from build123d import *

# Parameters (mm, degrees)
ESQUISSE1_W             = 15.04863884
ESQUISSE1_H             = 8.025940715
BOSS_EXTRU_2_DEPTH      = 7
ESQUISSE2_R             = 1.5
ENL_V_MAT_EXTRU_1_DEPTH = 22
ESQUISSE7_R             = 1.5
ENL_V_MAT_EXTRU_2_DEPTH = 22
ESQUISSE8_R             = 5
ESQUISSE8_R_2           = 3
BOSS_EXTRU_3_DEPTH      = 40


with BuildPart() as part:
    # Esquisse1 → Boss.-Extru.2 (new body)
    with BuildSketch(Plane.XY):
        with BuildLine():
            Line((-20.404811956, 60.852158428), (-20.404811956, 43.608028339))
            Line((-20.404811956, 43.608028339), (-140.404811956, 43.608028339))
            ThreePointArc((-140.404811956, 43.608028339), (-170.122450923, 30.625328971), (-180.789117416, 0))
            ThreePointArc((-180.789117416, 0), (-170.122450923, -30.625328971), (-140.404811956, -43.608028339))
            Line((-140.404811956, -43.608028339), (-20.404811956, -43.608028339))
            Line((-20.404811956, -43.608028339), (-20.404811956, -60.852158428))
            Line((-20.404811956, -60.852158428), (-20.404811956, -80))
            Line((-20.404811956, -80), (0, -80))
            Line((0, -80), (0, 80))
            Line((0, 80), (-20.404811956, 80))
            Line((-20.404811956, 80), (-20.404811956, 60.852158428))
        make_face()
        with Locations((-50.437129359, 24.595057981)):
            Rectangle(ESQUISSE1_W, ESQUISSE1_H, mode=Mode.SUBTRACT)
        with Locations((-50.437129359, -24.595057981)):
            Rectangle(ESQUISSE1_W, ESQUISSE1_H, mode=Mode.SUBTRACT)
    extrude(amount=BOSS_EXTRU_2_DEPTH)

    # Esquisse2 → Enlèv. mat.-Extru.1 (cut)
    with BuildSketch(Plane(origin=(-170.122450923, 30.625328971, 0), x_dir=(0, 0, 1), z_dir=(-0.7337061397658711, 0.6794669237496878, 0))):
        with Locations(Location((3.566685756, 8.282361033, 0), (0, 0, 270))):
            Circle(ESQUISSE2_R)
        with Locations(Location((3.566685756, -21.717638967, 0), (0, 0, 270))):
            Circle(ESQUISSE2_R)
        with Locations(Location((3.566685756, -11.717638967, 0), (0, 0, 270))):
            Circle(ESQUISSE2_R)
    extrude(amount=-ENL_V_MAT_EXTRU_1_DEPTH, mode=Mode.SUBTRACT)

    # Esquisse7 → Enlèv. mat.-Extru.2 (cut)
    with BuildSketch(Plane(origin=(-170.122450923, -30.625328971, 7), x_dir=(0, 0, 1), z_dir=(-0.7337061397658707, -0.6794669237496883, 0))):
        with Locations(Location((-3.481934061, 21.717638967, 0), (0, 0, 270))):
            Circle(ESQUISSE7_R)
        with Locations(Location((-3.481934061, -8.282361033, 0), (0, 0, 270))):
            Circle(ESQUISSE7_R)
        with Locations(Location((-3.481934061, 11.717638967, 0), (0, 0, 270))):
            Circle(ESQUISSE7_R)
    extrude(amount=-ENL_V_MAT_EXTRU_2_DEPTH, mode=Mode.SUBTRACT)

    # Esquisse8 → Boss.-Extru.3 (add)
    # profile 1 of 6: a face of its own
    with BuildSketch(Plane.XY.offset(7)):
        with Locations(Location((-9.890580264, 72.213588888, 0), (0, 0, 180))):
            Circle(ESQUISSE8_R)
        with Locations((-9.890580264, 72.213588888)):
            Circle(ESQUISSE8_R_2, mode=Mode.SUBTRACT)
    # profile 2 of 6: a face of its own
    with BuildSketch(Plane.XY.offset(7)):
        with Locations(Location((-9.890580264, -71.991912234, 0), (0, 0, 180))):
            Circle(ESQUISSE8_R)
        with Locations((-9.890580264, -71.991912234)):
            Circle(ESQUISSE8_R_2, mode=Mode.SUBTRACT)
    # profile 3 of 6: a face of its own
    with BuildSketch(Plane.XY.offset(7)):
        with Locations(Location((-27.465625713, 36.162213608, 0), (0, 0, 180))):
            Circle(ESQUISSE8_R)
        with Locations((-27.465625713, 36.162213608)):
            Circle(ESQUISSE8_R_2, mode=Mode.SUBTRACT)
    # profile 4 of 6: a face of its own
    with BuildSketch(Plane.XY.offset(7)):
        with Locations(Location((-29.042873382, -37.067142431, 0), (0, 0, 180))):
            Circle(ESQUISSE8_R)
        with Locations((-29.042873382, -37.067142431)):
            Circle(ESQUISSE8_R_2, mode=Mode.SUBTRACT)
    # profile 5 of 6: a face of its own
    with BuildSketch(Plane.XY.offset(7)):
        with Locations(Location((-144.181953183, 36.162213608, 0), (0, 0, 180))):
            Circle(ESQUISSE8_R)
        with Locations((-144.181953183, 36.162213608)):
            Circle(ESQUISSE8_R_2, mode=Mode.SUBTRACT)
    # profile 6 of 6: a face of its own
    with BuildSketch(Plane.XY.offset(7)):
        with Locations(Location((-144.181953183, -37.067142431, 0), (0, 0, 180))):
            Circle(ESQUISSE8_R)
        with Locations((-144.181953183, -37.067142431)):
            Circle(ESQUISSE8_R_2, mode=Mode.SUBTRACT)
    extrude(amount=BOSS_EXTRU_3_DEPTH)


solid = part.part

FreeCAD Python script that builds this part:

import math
import FreeCAD as App
import Part
import Sketcher
from FreeCAD import Vector


def add_polygon(sketch, points):
    """Adds a closed chain of lines whose ends are joined by coincident constraints."""
    first, n = sketch.GeometryCount, len(points)
    for a, b in zip(points, points[1:] + points[:1]):
        sketch.addGeometry(Part.LineSegment(App.Vector(*a, 0), App.Vector(*b, 0)), False)
    for i in range(n):
        sketch.addConstraint(Sketcher.Constraint("Coincident", first + i, 2, first + (i + 1) % n, 1))

doc = App.newDocument("Part")
params = doc.addObject("Spreadsheet::Sheet", "Params")
for row, (alias, value) in enumerate([
    ("sketch1_width", "120 mm"),
    ("sketch1_height", "160 mm"),
    ("pad1_length", "7 mm"),
    ("sketch2_diameter", "3 mm"),
    ("pocket1_length", "22 mm"),
    ("sketch3_diameter", "3 mm"),
    ("pocket2_length", "22 mm"),
    ("sketch4_diameter", "10 mm"),
    ("sketch4_diameter2", "6 mm"),
    ("pad2_length", "40 mm"),
], start=1):
    params.set(f"A{row}", alias)
    params.set(f"B{row}", "=" + value)
    params.setAlias(f"B{row}", alias)

body = doc.addObject("PartDesign::Body", "Body")

sketch1 = body.newObject("Sketcher::SketchObject", "Sketch")
sketch1.AttachmentSupport = (doc.getObject("XY_Plane"), [""])
sketch1.MapMode = "FlatFace"
sketch1.addGeometry(Part.LineSegment(Vector(-20.404812, 43.608028, 0), Vector(-140.404812, 43.608028, 0)), False)
sketch1.addGeometry(Part.ArcOfCircle(Part.Circle(Vector(-140.404812, 3.104566, 0), Vector(0, 0, 1), 40.503462), math.radians(90), math.radians(184.395999)), False)
sketch1.addGeometry(Part.ArcOfCircle(Part.Circle(Vector(-140.404812, -3.104566, 0), Vector(0, 0, 1), 40.503462), math.radians(175.604001), math.radians(270)), False)
sketch1.addGeometry(Part.LineSegment(Vector(-140.404812, -43.608028, 0), Vector(-20.404812, -43.608028, 0)), False)
sketch1.addGeometry(Part.LineSegment(Vector(-20.404812, -43.608028, 0), Vector(-20.404812, -80, 0)), False)
sketch1.addGeometry(Part.LineSegment(Vector(-20.404812, -80, 0), Vector(0, -80, 0)), False)
sketch1.addGeometry(Part.LineSegment(Vector(0, -80, 0), Vector(0, 80, 0)), False)
sketch1.addGeometry(Part.LineSegment(Vector(0, 80, 0), Vector(-20.404812, 80, 0)), False)
sketch1.addGeometry(Part.LineSegment(Vector(-20.404812, 80, 0), Vector(-20.404812, 43.608028, 0)), False)
add_polygon(sketch1, [(-42.91281, -28.608028), (-57.961449, -28.608028), (-57.961449, -20.582088), (-42.91281, -20.582088)])
add_polygon(sketch1, [(-42.91281, 20.582088), (-57.961449, 20.582088), (-57.961449, 28.608028), (-42.91281, 28.608028)])
sketch1.addConstraint([
    Sketcher.Constraint("Tangent", 0, 2, 1, 1),
    Sketcher.Constraint("Coincident", 1, 2, 2, 1),
    Sketcher.Constraint("Tangent", 2, 2, 3, 1),
    Sketcher.Constraint("Coincident", 3, 2, 4, 1),
    Sketcher.Constraint("Coincident", 4, 2, 5, 1),
    Sketcher.Constraint("Coincident", 5, 2, 6, 1),
    Sketcher.Constraint("Coincident", 6, 2, 7, 1),
    Sketcher.Constraint("Coincident", 7, 2, 8, 1),
    Sketcher.Constraint("Coincident", 8, 2, 0, 1),
    Sketcher.Constraint("Horizontal", 0),
    Sketcher.Constraint("Horizontal", 3),
    Sketcher.Constraint("Vertical", 4),
    Sketcher.Constraint("Horizontal", 5),
    Sketcher.Constraint("Vertical", 6),
    Sketcher.Constraint("Horizontal", 7),
    Sketcher.Constraint("Vertical", 8),
    Sketcher.Constraint("Horizontal", 9),
    Sketcher.Constraint("Vertical", 10),
    Sketcher.Constraint("Horizontal", 11),
    Sketcher.Constraint("Vertical", 12),
    Sketcher.Constraint("Horizontal", 13),
    Sketcher.Constraint("Vertical", 14),
    Sketcher.Constraint("Horizontal", 15),
    Sketcher.Constraint("Vertical", 16),
    Sketcher.Constraint("Equal", 1, 2),
    Sketcher.Constraint("Symmetric", 5, 2, 6, 2, -1, 1),
    Sketcher.Constraint("Symmetric", 1, 3, 2, 3, -1),
    Sketcher.Constraint("Symmetric", 10, 2, 13, 2, -1),
    Sketcher.Constraint("Symmetric", 12, 2, 15, 2, -1),
    Sketcher.Constraint("Vertical", 4, 2, 7, 2),
    Sketcher.Constraint("DistanceX", 0, 2, 0, 1, 120.0),
    Sketcher.Constraint("DistanceY", 6, 1, 6, 2, 160.0),
    Sketcher.Constraint("DistanceY", 3, 2, 9, 2, 15.0),
    Sketcher.Constraint("Radius", 1, 40.503462),
    Sketcher.Constraint("DistanceX", 5, 1, 5, 2, 20.404812),
    Sketcher.Constraint("DistanceX", 9, 2, 9, 1, 15.048639),
    Sketcher.Constraint("DistanceY", 4, 2, 4, 1, 36.391972),
    Sketcher.Constraint("DistanceY", 10, 1, 10, 2, 8.025941),
    Sketcher.Constraint("DistanceX", 9, 2, -1, 1, 57.961449),
])
sketch1.setExpression("Constraints[38]", "Params.sketch1_width")
sketch1.setExpression("Constraints[39]", "Params.sketch1_height")
pad1 = body.newObject("PartDesign::Pad", "Pad")
pad1.Profile = sketch1
pad1.setExpression("Length", "Params.pad1_length")

sketch2 = body.newObject("Sketcher::SketchObject", "Sketch001")
sketch2.Placement = App.Placement(Vector(-170.122451, 30.625329, 0), App.Rotation(Vector(0, 0, 1), Vector(0.679466924, 0.73370614, 0), Vector(-0.73370614, 0.679466924, 0), "ZXY"))
sketch2.addGeometry([
    Part.Circle(Vector(3.566686, 8.282361, 0), Vector(0, 0, 1), 1.5),
    Part.Circle(Vector(3.566686, -21.717639, 0), Vector(0, 0, 1), 1.5),
    Part.Circle(Vector(3.566686, -11.717639, 0), Vector(0, 0, 1), 1.5),
], False)
sketch2.addConstraint([
    Sketcher.Constraint("Equal", 0, 1),
    Sketcher.Constraint("Equal", 1, 2),
    Sketcher.Constraint("Vertical", 0, 3, 1, 3),
    Sketcher.Constraint("Vertical", 1, 3, 2, 3),
    Sketcher.Constraint("Diameter", 0, 3.0),
    Sketcher.Constraint("DistanceY", 1, 3, 0, 3, 30.0),
    Sketcher.Constraint("DistanceY", 1, 3, 2, 3, 10.0),
    Sketcher.Constraint("DistanceY", -1, 1, 0, 3, 8.282361),
    Sketcher.Constraint("DistanceX", -1, 1, 0, 3, 3.566686),
])
sketch2.setExpression("Constraints[4]", "Params.sketch2_diameter")
pocket1 = body.newObject("PartDesign::Pocket", "Pocket")
pocket1.Profile = sketch2
pocket1.setExpression("Length", "Params.pocket1_length")

sketch3 = body.newObject("Sketcher::SketchObject", "Sketch002")
sketch3.Placement = App.Placement(Vector(-170.122451, -30.625329, 7), App.Rotation(Vector(0, 0, 1), Vector(-0.679466924, 0.73370614, 0), Vector(-0.73370614, -0.679466924, 0), "ZXY"))
sketch3.addGeometry([
    Part.Circle(Vector(-3.481934, 21.717639, 0), Vector(0, 0, 1), 1.5),
    Part.Circle(Vector(-3.481934, -8.282361, 0), Vector(0, 0, 1), 1.5),
    Part.Circle(Vector(-3.481934, 11.717639, 0), Vector(0, 0, 1), 1.5),
], False)
sketch3.addConstraint([
    Sketcher.Constraint("Equal", 0, 1),
    Sketcher.Constraint("Equal", 1, 2),
    Sketcher.Constraint("Vertical", 0, 3, 1, 3),
    Sketcher.Constraint("Vertical", 1, 3, 2, 3),
    Sketcher.Constraint("Diameter", 0, 3.0),
    Sketcher.Constraint("DistanceY", 1, 3, 0, 3, 30.0),
    Sketcher.Constraint("DistanceY", 2, 3, 0, 3, 10.0),
    Sketcher.Constraint("DistanceY", -1, 1, 0, 3, 21.717639),
    Sketcher.Constraint("DistanceX", 0, 3, -1, 1, 3.481934),
])
sketch3.setExpression("Constraints[4]", "Params.sketch3_diameter")
pocket2 = body.newObject("PartDesign::Pocket", "Pocket001")
pocket2.Profile = sketch3
pocket2.setExpression("Length", "Params.pocket2_length")

sketch4 = body.newObject("Sketcher::SketchObject", "Sketch003")
sketch4.AttachmentSupport = (doc.getObject("XY_Plane"), [""])
sketch4.MapMode = "FlatFace"
sketch4.AttachmentOffset = App.Placement(Vector(0, 0, 7), App.Rotation())
sketch4.addGeometry([
    Part.Circle(Vector(-9.89058, 72.213589, 0), Vector(0, 0, 1), 5),
    Part.Circle(Vector(-9.89058, 72.213589, 0), Vector(0, 0, 1), 3),
    Part.Circle(Vector(-9.89058, -71.991912, 0), Vector(0, 0, 1), 5),
    Part.Circle(Vector(-9.89058, -71.991912, 0), Vector(0, 0, 1), 3),
    Part.Circle(Vector(-27.465626, 36.162214, 0), Vector(0, 0, 1), 5),
    Part.Circle(Vector(-27.465626, 36.162214, 0), Vector(0, 0, 1), 3),
    Part.Circle(Vector(-29.042873, -37.067142, 0), Vector(0, 0, 1), 5),
    Part.Circle(Vector(-29.042873, -37.067142, 0), Vector(0, 0, 1), 3),
    Part.Circle(Vector(-144.181953, 36.162214, 0), Vector(0, 0, 1), 5),
    Part.Circle(Vector(-144.181953, 36.162214, 0), Vector(0, 0, 1), 3),
    Part.Circle(Vector(-144.181953, -37.067142, 0), Vector(0, 0, 1), 5),
    Part.Circle(Vector(-144.181953, -37.067142, 0), Vector(0, 0, 1), 3),
], False)
sketch4.addConstraint([
    Sketcher.Constraint("Coincident", 1, 3, 0, 3),
    Sketcher.Constraint("Coincident", 3, 3, 2, 3),
    Sketcher.Constraint("Coincident", 5, 3, 4, 3),
    Sketcher.Constraint("Coincident", 7, 3, 6, 3),
    Sketcher.Constraint("Coincident", 9, 3, 8, 3),
    Sketcher.Constraint("Coincident", 11, 3, 10, 3),
    Sketcher.Constraint("Equal", 0, 2),
    Sketcher.Constraint("Equal", 1, 3),
    Sketcher.Constraint("Equal", 2, 4),
    Sketcher.Constraint("Equal", 3, 5),
    Sketcher.Constraint("Equal", 4, 6),
    Sketcher.Constraint("Equal", 5, 7),
    Sketcher.Constraint("Equal", 6, 8),
    Sketcher.Constraint("Equal", 7, 9),
    Sketcher.Constraint("Equal", 8, 10),
    Sketcher.Constraint("Equal", 9, 11),
    Sketcher.Constraint("Horizontal", 5, 3, 8, 3),
    Sketcher.Constraint("Horizontal", 7, 3, 10, 3),
    Sketcher.Constraint("Vertical", 1, 3, 2, 3),
    Sketcher.Constraint("Vertical", 9, 3, 10, 3),
    Sketcher.Constraint("Diameter", 0, 10.0),
    Sketcher.Constraint("Diameter", 1, 6.0),
    Sketcher.Constraint("DistanceY", 2, 3, 0, 3, 144.205501),
    Sketcher.Constraint("DistanceX", 0, 3, -1, 1, 9.89058),
    Sketcher.Constraint("DistanceY", -1, 1, 0, 3, 72.213589),
    Sketcher.Constraint("DistanceY", 2, 3, 6, 3, 34.92477),
    Sketcher.Constraint("DistanceX", 8, 3, 6, 3, 115.13908),
    Sketcher.Constraint("DistanceX", 4, 3, -1, 1, 27.465626),
    Sketcher.Constraint("DistanceY", -1, 1, 4, 3, 36.162214),
    Sketcher.Constraint("DistanceX", 6, 3, -1, 1, 29.042873),
])
sketch4.setExpression("Constraints[20]", "Params.sketch4_diameter")
sketch4.setExpression("Constraints[21]", "Params.sketch4_diameter2")
pad2 = body.newObject("PartDesign::Pad", "Pad001")
pad2.Profile = sketch4
pad2.setExpression("Length", "Params.pad2_length")

doc.recompute()
